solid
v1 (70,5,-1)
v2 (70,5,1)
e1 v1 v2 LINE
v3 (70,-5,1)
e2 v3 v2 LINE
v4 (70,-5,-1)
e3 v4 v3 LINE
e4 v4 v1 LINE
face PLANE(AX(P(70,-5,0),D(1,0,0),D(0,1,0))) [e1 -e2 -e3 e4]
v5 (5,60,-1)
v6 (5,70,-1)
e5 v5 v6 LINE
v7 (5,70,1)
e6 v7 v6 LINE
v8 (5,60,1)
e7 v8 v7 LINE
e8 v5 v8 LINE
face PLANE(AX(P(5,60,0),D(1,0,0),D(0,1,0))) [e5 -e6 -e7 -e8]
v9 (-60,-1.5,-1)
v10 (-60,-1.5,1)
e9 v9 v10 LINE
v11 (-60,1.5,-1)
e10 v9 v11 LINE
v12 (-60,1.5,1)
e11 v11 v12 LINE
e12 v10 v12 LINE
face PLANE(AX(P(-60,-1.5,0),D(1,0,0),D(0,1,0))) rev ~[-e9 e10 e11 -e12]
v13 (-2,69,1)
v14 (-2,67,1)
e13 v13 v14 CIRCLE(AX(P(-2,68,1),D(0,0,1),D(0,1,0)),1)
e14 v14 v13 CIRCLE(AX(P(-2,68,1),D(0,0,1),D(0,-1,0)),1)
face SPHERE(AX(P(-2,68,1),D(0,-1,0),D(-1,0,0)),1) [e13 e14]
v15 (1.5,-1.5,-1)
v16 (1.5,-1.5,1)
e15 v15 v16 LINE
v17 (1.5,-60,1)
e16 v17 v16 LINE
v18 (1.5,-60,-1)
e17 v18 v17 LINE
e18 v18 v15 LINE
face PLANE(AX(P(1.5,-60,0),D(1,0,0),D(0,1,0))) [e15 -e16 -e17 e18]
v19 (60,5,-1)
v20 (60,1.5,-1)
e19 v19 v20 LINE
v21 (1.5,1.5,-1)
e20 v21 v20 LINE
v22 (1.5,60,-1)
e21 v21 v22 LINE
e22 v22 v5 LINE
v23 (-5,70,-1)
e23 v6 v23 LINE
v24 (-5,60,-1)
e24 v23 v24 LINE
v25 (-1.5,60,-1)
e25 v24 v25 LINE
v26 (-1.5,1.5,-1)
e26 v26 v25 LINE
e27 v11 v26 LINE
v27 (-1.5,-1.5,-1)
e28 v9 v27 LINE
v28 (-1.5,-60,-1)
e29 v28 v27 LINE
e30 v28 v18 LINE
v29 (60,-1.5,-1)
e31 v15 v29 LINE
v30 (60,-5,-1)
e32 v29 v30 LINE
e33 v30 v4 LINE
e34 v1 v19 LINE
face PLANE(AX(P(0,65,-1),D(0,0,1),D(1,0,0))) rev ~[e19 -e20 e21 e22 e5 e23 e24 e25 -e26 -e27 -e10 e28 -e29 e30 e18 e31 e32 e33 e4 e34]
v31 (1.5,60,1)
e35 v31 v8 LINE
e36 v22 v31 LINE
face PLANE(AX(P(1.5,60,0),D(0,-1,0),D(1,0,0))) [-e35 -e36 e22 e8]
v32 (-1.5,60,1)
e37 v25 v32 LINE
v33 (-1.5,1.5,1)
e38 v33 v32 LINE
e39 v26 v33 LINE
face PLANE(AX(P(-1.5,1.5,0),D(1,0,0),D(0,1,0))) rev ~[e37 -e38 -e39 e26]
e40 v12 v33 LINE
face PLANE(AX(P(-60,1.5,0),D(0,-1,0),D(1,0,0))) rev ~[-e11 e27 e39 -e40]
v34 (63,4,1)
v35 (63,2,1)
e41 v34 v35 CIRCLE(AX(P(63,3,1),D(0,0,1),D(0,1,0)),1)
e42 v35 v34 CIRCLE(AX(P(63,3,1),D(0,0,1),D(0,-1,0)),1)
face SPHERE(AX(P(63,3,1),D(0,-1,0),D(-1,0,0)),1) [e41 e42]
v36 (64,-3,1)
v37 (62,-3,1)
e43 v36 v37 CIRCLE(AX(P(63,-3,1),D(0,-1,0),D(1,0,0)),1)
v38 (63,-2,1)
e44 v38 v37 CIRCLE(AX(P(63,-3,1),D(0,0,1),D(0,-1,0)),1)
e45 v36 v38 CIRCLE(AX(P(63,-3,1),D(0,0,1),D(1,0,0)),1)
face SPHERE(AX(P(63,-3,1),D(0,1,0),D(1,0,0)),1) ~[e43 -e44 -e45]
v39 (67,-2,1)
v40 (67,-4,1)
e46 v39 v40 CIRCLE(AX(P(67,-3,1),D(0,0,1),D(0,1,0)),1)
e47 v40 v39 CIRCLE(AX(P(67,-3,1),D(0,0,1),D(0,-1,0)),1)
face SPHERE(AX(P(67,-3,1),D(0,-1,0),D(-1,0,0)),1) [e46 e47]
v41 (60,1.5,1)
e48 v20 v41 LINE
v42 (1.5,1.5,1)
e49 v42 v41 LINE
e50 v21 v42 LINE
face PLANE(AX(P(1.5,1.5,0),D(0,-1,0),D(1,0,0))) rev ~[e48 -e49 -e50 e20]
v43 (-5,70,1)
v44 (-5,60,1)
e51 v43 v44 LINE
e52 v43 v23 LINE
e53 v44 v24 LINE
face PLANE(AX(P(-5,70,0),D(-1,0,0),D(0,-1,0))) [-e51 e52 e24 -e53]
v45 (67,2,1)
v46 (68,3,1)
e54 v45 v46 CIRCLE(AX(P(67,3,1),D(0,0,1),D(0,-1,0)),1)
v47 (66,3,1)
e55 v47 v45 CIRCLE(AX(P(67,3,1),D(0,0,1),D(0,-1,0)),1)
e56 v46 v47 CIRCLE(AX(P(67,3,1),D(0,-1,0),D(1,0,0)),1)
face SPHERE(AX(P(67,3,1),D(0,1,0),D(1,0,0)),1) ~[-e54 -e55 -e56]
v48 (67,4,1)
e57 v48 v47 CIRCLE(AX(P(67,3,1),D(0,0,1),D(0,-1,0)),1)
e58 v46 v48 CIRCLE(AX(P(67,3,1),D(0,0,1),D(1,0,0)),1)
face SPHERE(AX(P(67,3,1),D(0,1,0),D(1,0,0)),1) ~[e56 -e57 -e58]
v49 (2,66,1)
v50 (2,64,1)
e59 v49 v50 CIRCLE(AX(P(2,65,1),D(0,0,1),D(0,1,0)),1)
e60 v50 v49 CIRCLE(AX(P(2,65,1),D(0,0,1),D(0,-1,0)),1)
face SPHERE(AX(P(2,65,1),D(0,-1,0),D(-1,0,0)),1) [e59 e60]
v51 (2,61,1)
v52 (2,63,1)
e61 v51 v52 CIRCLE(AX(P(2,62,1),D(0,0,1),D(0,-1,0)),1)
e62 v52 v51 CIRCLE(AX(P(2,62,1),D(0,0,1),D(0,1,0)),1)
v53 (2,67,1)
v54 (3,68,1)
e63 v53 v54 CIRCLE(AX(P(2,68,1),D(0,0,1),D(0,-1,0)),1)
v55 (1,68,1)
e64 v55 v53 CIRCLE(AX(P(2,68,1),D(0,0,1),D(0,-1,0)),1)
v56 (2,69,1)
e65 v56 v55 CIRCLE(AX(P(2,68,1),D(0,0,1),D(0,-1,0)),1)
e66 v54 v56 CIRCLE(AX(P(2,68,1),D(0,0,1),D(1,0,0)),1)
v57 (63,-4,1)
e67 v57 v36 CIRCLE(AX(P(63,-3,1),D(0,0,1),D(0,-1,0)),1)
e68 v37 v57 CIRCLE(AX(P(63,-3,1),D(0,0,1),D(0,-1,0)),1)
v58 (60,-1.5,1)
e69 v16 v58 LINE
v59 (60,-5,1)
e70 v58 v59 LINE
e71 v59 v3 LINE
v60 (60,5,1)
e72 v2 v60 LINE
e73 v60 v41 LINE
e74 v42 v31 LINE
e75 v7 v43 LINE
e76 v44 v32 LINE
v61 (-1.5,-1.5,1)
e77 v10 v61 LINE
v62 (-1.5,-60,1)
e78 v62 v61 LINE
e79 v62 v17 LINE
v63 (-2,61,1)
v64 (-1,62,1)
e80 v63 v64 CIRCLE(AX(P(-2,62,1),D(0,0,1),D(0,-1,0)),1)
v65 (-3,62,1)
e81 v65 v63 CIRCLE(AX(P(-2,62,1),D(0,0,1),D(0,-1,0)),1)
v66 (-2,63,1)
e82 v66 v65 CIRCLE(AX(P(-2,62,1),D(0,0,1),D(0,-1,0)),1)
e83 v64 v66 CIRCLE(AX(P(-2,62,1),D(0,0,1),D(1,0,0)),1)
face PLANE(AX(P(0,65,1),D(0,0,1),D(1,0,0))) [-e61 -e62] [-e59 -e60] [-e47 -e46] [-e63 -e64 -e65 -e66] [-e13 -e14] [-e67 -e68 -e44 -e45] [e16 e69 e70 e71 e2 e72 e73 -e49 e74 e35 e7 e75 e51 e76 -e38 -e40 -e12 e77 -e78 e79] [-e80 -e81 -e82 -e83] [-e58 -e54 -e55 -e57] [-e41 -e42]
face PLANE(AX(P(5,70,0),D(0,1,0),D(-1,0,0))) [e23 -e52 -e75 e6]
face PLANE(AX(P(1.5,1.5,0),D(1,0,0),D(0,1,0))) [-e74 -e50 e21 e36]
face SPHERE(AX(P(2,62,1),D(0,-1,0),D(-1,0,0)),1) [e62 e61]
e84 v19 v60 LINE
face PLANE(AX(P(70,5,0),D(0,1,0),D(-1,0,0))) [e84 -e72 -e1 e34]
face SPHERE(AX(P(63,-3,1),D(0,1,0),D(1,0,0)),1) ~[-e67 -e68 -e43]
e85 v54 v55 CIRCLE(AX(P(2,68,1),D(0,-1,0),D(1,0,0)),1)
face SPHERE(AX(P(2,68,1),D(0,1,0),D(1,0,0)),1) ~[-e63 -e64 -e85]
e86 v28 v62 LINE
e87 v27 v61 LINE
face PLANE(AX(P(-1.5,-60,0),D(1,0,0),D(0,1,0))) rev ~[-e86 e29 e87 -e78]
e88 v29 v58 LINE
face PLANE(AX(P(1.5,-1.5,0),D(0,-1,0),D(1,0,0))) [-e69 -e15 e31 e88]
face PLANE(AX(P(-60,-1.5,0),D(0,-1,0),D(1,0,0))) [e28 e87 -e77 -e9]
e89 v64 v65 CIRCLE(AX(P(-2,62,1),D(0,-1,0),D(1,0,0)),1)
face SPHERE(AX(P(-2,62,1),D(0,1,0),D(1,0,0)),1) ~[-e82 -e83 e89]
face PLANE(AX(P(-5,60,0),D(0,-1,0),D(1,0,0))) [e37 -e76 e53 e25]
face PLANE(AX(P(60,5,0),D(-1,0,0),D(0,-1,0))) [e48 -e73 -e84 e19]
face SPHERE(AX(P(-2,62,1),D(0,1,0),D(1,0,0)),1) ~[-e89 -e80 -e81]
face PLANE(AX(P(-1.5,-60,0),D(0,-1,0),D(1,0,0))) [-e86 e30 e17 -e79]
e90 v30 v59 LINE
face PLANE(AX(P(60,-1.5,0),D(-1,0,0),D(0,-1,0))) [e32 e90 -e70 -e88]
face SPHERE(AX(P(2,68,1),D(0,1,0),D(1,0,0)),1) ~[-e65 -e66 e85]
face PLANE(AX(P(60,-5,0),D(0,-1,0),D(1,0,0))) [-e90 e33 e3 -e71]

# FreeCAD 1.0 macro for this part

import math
import FreeCAD as App
import Part
import Sketcher
from FreeCAD import Vector
Q = App.Units.Quantity

doc = App.newDocument("Part")
body = doc.addObject("PartDesign::Body", "Body")

# Sketch on XY plane
sketch1 = body.newObject("Sketcher::SketchObject", "Sketch")
sketch1.AttachmentSupport = (doc.getObject("XY_Plane"), [""])
sketch1.MapMode = "FlatFace"
sketch1.addGeometry([
    Part.LineSegment(Vector(-5, 60, 0), Vector(-1.5, 60, 0)),  # 0
    Part.LineSegment(Vector(-1.5, 60, 0), Vector(-1.5, 1.5, 0)),  # 1
    Part.LineSegment(Vector(-1.5, 1.5, 0), Vector(-60, 1.5, 0)),  # 2
    Part.LineSegment(Vector(-60, 1.5, 0), Vector(-60, -1.5, 0)),  # 3
    Part.LineSegment(Vector(-60, -1.5, 0), Vector(-1.5, -1.5, 0)),  # 4
    Part.LineSegment(Vector(-1.5, -1.5, 0), Vector(-1.5, -60, 0)),  # 5
    Part.LineSegment(Vector(-1.5, -60, 0), Vector(1.5, -60, 0)),  # 6
    Part.LineSegment(Vector(1.5, -60, 0), Vector(1.5, -1.5, 0)),  # 7
    Part.LineSegment(Vector(1.5, -1.5, 0), Vector(60, -1.5, 0)),  # 8
    Part.LineSegment(Vector(60, -1.5, 0), Vector(60, -5, 0)),  # 9
    Part.LineSegment(Vector(60, -5, 0), Vector(70, -5, 0)),  # 10
    Part.LineSegment(Vector(70, -5, 0), Vector(70, 5, 0)),  # 11
    Part.LineSegment(Vector(70, 5, 0), Vector(60, 5, 0)),  # 12
    Part.LineSegment(Vector(60, 5, 0), Vector(60, 1.5, 0)),  # 13
    Part.LineSegment(Vector(60, 1.5, 0), Vector(1.5, 1.5, 0)),  # 14
    Part.LineSegment(Vector(1.5, 1.5, 0), Vector(1.5, 60, 0)),  # 15
    Part.LineSegment(Vector(1.5, 60, 0), Vector(5, 60, 0)),  # 16
    Part.LineSegment(Vector(5, 60, 0), Vector(5, 70, 0)),  # 17
    Part.LineSegment(Vector(5, 70, 0), Vector(-5, 70, 0)),  # 18
    Part.LineSegment(Vector(-5, 70, 0), Vector(-5, 60, 0)),  # 19
], False)
sketch1.addConstraint([
    Sketcher.Constraint("Coincident", 0, 2, 1, 1),
    Sketcher.Constraint("Coincident", 1, 2, 2, 1),
    Sketcher.Constraint("Coincident", 2, 2, 3, 1),
    Sketcher.Constraint("Coincident", 3, 2, 4, 1),
    Sketcher.Constraint("Coincident", 4, 2, 5, 1),
    Sketcher.Constraint("Coincident", 5, 2, 6, 1),
    Sketcher.Constraint("Coincident", 6, 2, 7, 1),
    Sketcher.Constraint("Coincident", 7, 2, 8, 1),
    Sketcher.Constraint("Coincident", 8, 2, 9, 1),
    Sketcher.Constraint("Coincident", 9, 2, 10, 1),
    Sketcher.Constraint("Coincident", 10, 2, 11, 1),
    Sketcher.Constraint("Coincident", 11, 2, 12, 1),
    Sketcher.Constraint("Coincident", 12, 2, 13, 1),
    Sketcher.Constraint("Coincident", 13, 2, 14, 1),
    Sketcher.Constraint("Coincident", 14, 2, 15, 1),
    Sketcher.Constraint("Coincident", 15, 2, 16, 1),
    Sketcher.Constraint("Coincident", 16, 2, 17, 1),
    Sketcher.Constraint("Coincident", 17, 2, 18, 1),
    Sketcher.Constraint("Coincident", 18, 2, 19, 1),
    Sketcher.Constraint("Coincident", 19, 2, 0, 1),
    Sketcher.Constraint("Horizontal", 0),
    Sketcher.Constraint("Vertical", 1),
    Sketcher.Constraint("Horizontal", 2),
    Sketcher.Constraint("Vertical", 3),
    Sketcher.Constraint("Horizontal", 4),
    Sketcher.Constraint("Vertical", 5),
    Sketcher.Constraint("Horizontal", 6),
    Sketcher.Constraint("Vertical", 7),
    Sketcher.Constraint("Horizontal", 8),
    Sketcher.Constraint("Vertical", 9),
    Sketcher.Constraint("Horizontal", 10),
    Sketcher.Constraint("Vertical", 11),
    Sketcher.Constraint("Horizontal", 12),
    Sketcher.Constraint("Vertical", 13),
    Sketcher.Constraint("Horizontal", 14),
    Sketcher.Constraint("Vertical", 15),
    Sketcher.Constraint("Horizontal", 16),
    Sketcher.Constraint("Vertical", 17),
    Sketcher.Constraint("Horizontal", 18),
    Sketcher.Constraint("Vertical", 19),
    Sketcher.Constraint("Symmetric", 0, 2, 6, 2, -1, 1),
    Sketcher.Constraint("Symmetric", 2, 2, 8, 2, -1, 1),
    Sketcher.Constraint("Symmetric", 3, 2, 13, 2, -1, 1),
    Sketcher.Constraint("Symmetric", 5, 2, 15, 2, -1, 1),
    Sketcher.Constraint("Symmetric", 4, 2, 7, 2, -2),
    Sketcher.Constraint("Equal", 0, 16),
    Sketcher.Constraint("Equal", 12, 18),
    Sketcher.Constraint("Equal", 14, 1),
    Sketcher.Constraint("Equal", 6, 3),
    Sketcher.Constraint("Equal", 16, 9),
    Sketcher.Constraint("Equal", 18, 11),
    Sketcher.Constraint("Equal", 11, 17),
    Sketcher.Constraint("DistanceX", 6, 1, 6, 2, Q("3 mm")),
    Sketcher.Constraint("DistanceX", 10, 1, 10, 2, Q("10 mm")),
    Sketcher.Constraint("DistanceX", 2, 2, 2, 1, Q("58.5 mm")),
])
pad1 = body.newObject("PartDesign::Pad", "Pad")
pad1.Profile = sketch1
pad1.Length = 2
pad1.Midplane = True

# Sketch on XY plane
sketch2 = body.newObject("Sketcher::SketchObject", "Sketch001")
sketch2.AttachmentSupport = (doc.getObject("XY_Plane"), [""])
sketch2.MapMode = "FlatFace"
sketch2.AttachmentOffset = App.Placement(Vector(0, 0, 1), App.Rotation())
sketch2.addGeometry([
    Part.LineSegment(Vector(-2, 67, 0), Vector(-2, 69, 0)),  # 0
    Part.ArcOfCircle(Part.Circle(Vector(-2, 68, 0), Vector(0, 0, 1), 1), math.radians(90), math.radians(270)),  # 1
    Part.ArcOfCircle(Part.Circle(Vector(-2, 62, 0), Vector(0, 0, 1), 1), math.radians(0), math.radians(90)),  # 2
    Part.LineSegment(Vector(-2, 63, 0), Vector(-2, 61, 0)),  # 3
    Part.ArcOfCircle(Part.Circle(Vector(-2, 62, 0), Vector(0, 0, 1), 1), math.radians(-90), math.radians(0)),  # 4
], False)
sketch2.addGeometry(Part.LineSegment(Vector(-2, 69, 0), Vector(-2, 61, 0)), True)  # axis
sketch2.addConstraint([
    Sketcher.Constraint("Coincident", 0, 1, 1, 2),
    Sketcher.Constraint("Coincident", 1, 1, 0, 2),
    Sketcher.Constraint("Coincident", 2, 2, 3, 1),
    Sketcher.Constraint("Coincident", 3, 2, 4, 1),
    Sketcher.Constraint("Tangent", 4, 2, 2, 1),
    Sketcher.Constraint("Vertical", 0),
    Sketcher.Constraint("Vertical", 3),
    Sketcher.Constraint("Vertical", 5),
    Sketcher.Constraint("Coincident", 5, 1, 1, 1),
    Sketcher.Constraint("Coincident", 5, 2, 3, 2),
    Sketcher.Constraint("Equal", 1, 2),
    Sketcher.Constraint("Equal", 2, 4),
    Sketcher.Constraint("Horizontal", 2, 3, 4, 2),
    Sketcher.Constraint("Vertical", 1, 3, 2, 3),
    Sketcher.Constraint("Vertical", 4, 3, 0, 1),
    Sketcher.Constraint("Radius", 1, Q("1 mm")),
    Sketcher.Constraint("DistanceY", 5, 2, 5, 1, Q("8 mm")),
    Sketcher.Constraint("DistanceX", 1, 3, -1, 1, Q("2 mm")),
    Sketcher.Constraint("DistanceY", -1, 1, 1, 3, Q("68 mm")),
])
revolution = body.newObject("PartDesign::Revolution", "Revolution")
revolution.Profile = sketch2
revolution.ReferenceAxis = (sketch2, ["Axis0"])
revolution.Angle = 360

# Sketch on XY plane
sketch3 = body.newObject("Sketcher::SketchObject", "Sketch002")
sketch3.AttachmentSupport = (doc.getObject("XY_Plane"), [""])
sketch3.MapMode = "FlatFace"
sketch3.AttachmentOffset = App.Placement(Vector(0, 0, 1), App.Rotation())
sketch3.addGeometry([
    Part.ArcOfCircle(Part.Circle(Vector(2, 68, 0), Vector(0, 0, 1), 1), math.radians(-90), math.radians(0)),  # 0
    Part.ArcOfCircle(Part.Circle(Vector(2, 68, 0), Vector(0, 0, 1), 1), math.radians(0), math.radians(90)),  # 1
    Part.LineSegment(Vector(2, 69, 0), Vector(2, 67, 0)),  # 2
    Part.LineSegment(Vector(2, 64, 0), Vector(2, 66, 0)),  # 3
    Part.ArcOfCircle(Part.Circle(Vector(2, 65, 0), Vector(0, 0, 1), 1), math.radians(90), math.radians(270)),  # 4
    Part.LineSegment(Vector(2, 61, 0), Vector(2, 63, 0)),  # 5
    Part.ArcOfCircle(Part.Circle(Vector(2, 62, 0), Vector(0, 0, 1), 1), math.radians(90), math.radians(270)),  # 6
], False)
sketch3.addGeometry(Part.LineSegment(Vector(2, 69, 0), Vector(2, 61, 0)), True)  # axis
sketch3.addConstraint([
    Sketcher.Constraint("Tangent", 0, 2, 1, 1),
    Sketcher.Constraint("Coincident", 1, 2, 2, 1),
    Sketcher.Constraint("Coincident", 2, 2, 0, 1),
    Sketcher.Constraint("Coincident", 3, 1, 4, 2),
    Sketcher.Constraint("Coincident", 4, 1, 3, 2),
    Sketcher.Constraint("Coincident", 5, 1, 6, 2),
    Sketcher.Constraint("Coincident", 6, 1, 5, 2),
    Sketcher.Constraint("Vertical", 2),
    Sketcher.Constraint("Vertical", 3),
    Sketcher.Constraint("Vertical", 5),
    Sketcher.Constraint("Vertical", 7),
    Sketcher.Constraint("Coincident", 7, 1, 1, 2),
    Sketcher.Constraint("Coincident", 7, 2, 5, 1),
    Sketcher.Constraint("Equal", 0, 1),
    Sketcher.Constraint("Equal", 1, 4),
    Sketcher.Constraint("Equal", 4, 6),
    Sketcher.Constraint("Horizontal", 1, 3, 0, 2),
    Sketcher.Constraint("Vertical", 1, 3, 4, 3),
    Sketcher.Constraint("Vertical", 4, 3, 6, 3),
    Sketcher.Constraint("Vertical", 6, 3, 1, 2),
    Sketcher.Constraint("Vertical", 2, 2, 3, 1),
    Sketcher.Constraint("Radius", 0, Q("1 mm")),
    Sketcher.Constraint("DistanceY", 7, 2, 7, 1, Q("8 mm")),
    Sketcher.Constraint("DistanceX", -1, 1, 0, 3, Q("2 mm")),
    Sketcher.Constraint("DistanceY", -1, 1, 0, 3, Q("68 mm")),
    Sketcher.Constraint("DistanceY", -1, 1, 4, 3, Q("65 mm")),
])
revolution2 = body.newObject("PartDesign::Revolution", "Revolution001")
revolution2.Profile = sketch3
revolution2.ReferenceAxis = (sketch3, ["Axis0"])
revolution2.Angle = 360

# Sketch on XY plane
sketch4 = body.newObject("Sketcher::SketchObject", "Sketch003")
sketch4.AttachmentSupport = (doc.getObject("XY_Plane"), [""])
sketch4.MapMode = "FlatFace"
sketch4.AttachmentOffset = App.Placement(Vector(0, 0, 1), App.Rotation())
sketch4.addGeometry([
    Part.LineSegment(Vector(63, 2, 0), Vector(63, 4, 0)),  # 0
    Part.ArcOfCircle(Part.Circle(Vector(63, 3, 0), Vector(0, 0, 1), 1), math.radians(90), math.radians(270)),  # 1
    Part.ArcOfCircle(Part.Circle(Vector(63, -3, 0), Vector(0, 0, 1), 1), math.radians(0), math.radians(90)),  # 2
    Part.LineSegment(Vector(63, -2, 0), Vector(63, -4, 0)),  # 3
    Part.ArcOfCircle(Part.Circle(Vector(63, -3, 0), Vector(0, 0, 1), 1), math.radians(-90), math.radians(0)),  # 4
], False)
sketch4.addGeometry(Part.LineSegment(Vector(63, 4, 0), Vector(63, -4, 0)), True)  # axis
sketch4.addConstraint([
    Sketcher.Constraint("Coincident", 0, 1, 1, 2),
    Sketcher.Constraint("Coincident", 1, 1, 0, 2),
    Sketcher.Constraint("Coincident", 2, 2, 3, 1),
    Sketcher.Constraint("Coincident", 3, 2, 4, 1),
    Sketcher.Constraint("Tangent", 4, 2, 2, 1),
    Sketcher.Constraint("Vertical", 0),
    Sketcher.Constraint("Vertical", 3),
    Sketcher.Constraint("Vertical", 5),
    Sketcher.Constraint("Coincident", 5, 1, 1, 1),
    Sketcher.Constraint("Coincident", 5, 2, 3, 2),
    Sketcher.Constraint("Equal", 1, 2),
    Sketcher.Constraint("Equal", 2, 4),
    Sketcher.Constraint("Symmetric", 1, 3, 2, 3, -1),
    Sketcher.Constraint("Horizontal", 2, 3, 4, 2),
    Sketcher.Constraint("Vertical", 4, 3, 0, 1),
    Sketcher.Constraint("Radius", 1, Q("1 mm")),
    Sketcher.Constraint("DistanceY", 5, 2, 5, 1, Q("8 mm")),
    Sketcher.Constraint("DistanceX", -1, 1, 1, 3, Q("63 mm")),
])
revolution3 = body.newObject("PartDesign::Revolution", "Revolution002")
revolution3.Profile = sketch4
revolution3.ReferenceAxis = (sketch4, ["Axis0"])
revolution3.Angle = 360

# Sketch on XY plane
sketch5 = body.newObject("Sketcher::SketchObject", "Sketch004")
sketch5.AttachmentSupport = (doc.getObject("XY_Plane"), [""])
sketch5.MapMode = "FlatFace"
sketch5.AttachmentOffset = App.Placement(Vector(0, 0, 1), App.Rotation())
sketch5.addGeometry([
    Part.ArcOfCircle(Part.Circle(Vector(67, 3, 0), Vector(0, 0, 1), 1), math.radians(-90), math.radians(0)),  # 0
    Part.ArcOfCircle(Part.Circle(Vector(67, 3, 0), Vector(0, 0, 1), 1), math.radians(0), math.radians(90)),  # 1
    Part.LineSegment(Vector(67, 4, 0), Vector(67, 2, 0)),  # 2
    Part.LineSegment(Vector(67, -4, 0), Vector(67, -2, 0)),  # 3
    Part.ArcOfCircle(Part.Circle(Vector(67, -3, 0), Vector(0, 0, 1), 1), math.radians(90), math.radians(270)),  # 4
], False)
sketch5.addGeometry(Part.LineSegment(Vector(67, 4, 0), Vector(67, -4, 0)), True)  # axis
sketch5.addConstraint([
    Sketcher.Constraint("Tangent", 0, 2, 1, 1),
    Sketcher.Constraint("Coincident", 1, 2, 2, 1),
    Sketcher.Constraint("Coincident", 2, 2, 0, 1),
    Sketcher.Constraint("Coincident", 3, 1, 4, 2),
    Sketcher.Constraint("Coincident", 4, 1, 3, 2),
    Sketcher.Constraint("Vertical", 2),
    Sketcher.Constraint("Vertical", 3),
    Sketcher.Constraint("Vertical", 5),
    Sketcher.Constraint("Coincident", 5, 1, 1, 2),
    Sketcher.Constraint("Coincident", 5, 2, 3, 1),
    Sketcher.Constraint("Equal", 0, 1),
    Sketcher.Constraint("Equal", 1, 4),
    Sketcher.Constraint("Symmetric", 0, 3, 4, 3, -1),
    Sketcher.Constraint("Horizontal", 1, 3, 0, 2),
    Sketcher.Constraint("Vertical", 4, 3, 1, 2),
    Sketcher.Constraint("Radius", 0, Q("1 mm")),
    Sketcher.Constraint("DistanceY", 5, 2, 5, 1, Q("8 mm")),
    Sketcher.Constraint("DistanceX", -1, 1, 0, 3, Q("67 mm")),
])
revolution4 = body.newObject("PartDesign::Revolution", "Revolution003")
revolution4.Profile = sketch5
revolution4.ReferenceAxis = (sketch5, ["Axis0"])
revolution4.Angle = 360

doc.recompute()
